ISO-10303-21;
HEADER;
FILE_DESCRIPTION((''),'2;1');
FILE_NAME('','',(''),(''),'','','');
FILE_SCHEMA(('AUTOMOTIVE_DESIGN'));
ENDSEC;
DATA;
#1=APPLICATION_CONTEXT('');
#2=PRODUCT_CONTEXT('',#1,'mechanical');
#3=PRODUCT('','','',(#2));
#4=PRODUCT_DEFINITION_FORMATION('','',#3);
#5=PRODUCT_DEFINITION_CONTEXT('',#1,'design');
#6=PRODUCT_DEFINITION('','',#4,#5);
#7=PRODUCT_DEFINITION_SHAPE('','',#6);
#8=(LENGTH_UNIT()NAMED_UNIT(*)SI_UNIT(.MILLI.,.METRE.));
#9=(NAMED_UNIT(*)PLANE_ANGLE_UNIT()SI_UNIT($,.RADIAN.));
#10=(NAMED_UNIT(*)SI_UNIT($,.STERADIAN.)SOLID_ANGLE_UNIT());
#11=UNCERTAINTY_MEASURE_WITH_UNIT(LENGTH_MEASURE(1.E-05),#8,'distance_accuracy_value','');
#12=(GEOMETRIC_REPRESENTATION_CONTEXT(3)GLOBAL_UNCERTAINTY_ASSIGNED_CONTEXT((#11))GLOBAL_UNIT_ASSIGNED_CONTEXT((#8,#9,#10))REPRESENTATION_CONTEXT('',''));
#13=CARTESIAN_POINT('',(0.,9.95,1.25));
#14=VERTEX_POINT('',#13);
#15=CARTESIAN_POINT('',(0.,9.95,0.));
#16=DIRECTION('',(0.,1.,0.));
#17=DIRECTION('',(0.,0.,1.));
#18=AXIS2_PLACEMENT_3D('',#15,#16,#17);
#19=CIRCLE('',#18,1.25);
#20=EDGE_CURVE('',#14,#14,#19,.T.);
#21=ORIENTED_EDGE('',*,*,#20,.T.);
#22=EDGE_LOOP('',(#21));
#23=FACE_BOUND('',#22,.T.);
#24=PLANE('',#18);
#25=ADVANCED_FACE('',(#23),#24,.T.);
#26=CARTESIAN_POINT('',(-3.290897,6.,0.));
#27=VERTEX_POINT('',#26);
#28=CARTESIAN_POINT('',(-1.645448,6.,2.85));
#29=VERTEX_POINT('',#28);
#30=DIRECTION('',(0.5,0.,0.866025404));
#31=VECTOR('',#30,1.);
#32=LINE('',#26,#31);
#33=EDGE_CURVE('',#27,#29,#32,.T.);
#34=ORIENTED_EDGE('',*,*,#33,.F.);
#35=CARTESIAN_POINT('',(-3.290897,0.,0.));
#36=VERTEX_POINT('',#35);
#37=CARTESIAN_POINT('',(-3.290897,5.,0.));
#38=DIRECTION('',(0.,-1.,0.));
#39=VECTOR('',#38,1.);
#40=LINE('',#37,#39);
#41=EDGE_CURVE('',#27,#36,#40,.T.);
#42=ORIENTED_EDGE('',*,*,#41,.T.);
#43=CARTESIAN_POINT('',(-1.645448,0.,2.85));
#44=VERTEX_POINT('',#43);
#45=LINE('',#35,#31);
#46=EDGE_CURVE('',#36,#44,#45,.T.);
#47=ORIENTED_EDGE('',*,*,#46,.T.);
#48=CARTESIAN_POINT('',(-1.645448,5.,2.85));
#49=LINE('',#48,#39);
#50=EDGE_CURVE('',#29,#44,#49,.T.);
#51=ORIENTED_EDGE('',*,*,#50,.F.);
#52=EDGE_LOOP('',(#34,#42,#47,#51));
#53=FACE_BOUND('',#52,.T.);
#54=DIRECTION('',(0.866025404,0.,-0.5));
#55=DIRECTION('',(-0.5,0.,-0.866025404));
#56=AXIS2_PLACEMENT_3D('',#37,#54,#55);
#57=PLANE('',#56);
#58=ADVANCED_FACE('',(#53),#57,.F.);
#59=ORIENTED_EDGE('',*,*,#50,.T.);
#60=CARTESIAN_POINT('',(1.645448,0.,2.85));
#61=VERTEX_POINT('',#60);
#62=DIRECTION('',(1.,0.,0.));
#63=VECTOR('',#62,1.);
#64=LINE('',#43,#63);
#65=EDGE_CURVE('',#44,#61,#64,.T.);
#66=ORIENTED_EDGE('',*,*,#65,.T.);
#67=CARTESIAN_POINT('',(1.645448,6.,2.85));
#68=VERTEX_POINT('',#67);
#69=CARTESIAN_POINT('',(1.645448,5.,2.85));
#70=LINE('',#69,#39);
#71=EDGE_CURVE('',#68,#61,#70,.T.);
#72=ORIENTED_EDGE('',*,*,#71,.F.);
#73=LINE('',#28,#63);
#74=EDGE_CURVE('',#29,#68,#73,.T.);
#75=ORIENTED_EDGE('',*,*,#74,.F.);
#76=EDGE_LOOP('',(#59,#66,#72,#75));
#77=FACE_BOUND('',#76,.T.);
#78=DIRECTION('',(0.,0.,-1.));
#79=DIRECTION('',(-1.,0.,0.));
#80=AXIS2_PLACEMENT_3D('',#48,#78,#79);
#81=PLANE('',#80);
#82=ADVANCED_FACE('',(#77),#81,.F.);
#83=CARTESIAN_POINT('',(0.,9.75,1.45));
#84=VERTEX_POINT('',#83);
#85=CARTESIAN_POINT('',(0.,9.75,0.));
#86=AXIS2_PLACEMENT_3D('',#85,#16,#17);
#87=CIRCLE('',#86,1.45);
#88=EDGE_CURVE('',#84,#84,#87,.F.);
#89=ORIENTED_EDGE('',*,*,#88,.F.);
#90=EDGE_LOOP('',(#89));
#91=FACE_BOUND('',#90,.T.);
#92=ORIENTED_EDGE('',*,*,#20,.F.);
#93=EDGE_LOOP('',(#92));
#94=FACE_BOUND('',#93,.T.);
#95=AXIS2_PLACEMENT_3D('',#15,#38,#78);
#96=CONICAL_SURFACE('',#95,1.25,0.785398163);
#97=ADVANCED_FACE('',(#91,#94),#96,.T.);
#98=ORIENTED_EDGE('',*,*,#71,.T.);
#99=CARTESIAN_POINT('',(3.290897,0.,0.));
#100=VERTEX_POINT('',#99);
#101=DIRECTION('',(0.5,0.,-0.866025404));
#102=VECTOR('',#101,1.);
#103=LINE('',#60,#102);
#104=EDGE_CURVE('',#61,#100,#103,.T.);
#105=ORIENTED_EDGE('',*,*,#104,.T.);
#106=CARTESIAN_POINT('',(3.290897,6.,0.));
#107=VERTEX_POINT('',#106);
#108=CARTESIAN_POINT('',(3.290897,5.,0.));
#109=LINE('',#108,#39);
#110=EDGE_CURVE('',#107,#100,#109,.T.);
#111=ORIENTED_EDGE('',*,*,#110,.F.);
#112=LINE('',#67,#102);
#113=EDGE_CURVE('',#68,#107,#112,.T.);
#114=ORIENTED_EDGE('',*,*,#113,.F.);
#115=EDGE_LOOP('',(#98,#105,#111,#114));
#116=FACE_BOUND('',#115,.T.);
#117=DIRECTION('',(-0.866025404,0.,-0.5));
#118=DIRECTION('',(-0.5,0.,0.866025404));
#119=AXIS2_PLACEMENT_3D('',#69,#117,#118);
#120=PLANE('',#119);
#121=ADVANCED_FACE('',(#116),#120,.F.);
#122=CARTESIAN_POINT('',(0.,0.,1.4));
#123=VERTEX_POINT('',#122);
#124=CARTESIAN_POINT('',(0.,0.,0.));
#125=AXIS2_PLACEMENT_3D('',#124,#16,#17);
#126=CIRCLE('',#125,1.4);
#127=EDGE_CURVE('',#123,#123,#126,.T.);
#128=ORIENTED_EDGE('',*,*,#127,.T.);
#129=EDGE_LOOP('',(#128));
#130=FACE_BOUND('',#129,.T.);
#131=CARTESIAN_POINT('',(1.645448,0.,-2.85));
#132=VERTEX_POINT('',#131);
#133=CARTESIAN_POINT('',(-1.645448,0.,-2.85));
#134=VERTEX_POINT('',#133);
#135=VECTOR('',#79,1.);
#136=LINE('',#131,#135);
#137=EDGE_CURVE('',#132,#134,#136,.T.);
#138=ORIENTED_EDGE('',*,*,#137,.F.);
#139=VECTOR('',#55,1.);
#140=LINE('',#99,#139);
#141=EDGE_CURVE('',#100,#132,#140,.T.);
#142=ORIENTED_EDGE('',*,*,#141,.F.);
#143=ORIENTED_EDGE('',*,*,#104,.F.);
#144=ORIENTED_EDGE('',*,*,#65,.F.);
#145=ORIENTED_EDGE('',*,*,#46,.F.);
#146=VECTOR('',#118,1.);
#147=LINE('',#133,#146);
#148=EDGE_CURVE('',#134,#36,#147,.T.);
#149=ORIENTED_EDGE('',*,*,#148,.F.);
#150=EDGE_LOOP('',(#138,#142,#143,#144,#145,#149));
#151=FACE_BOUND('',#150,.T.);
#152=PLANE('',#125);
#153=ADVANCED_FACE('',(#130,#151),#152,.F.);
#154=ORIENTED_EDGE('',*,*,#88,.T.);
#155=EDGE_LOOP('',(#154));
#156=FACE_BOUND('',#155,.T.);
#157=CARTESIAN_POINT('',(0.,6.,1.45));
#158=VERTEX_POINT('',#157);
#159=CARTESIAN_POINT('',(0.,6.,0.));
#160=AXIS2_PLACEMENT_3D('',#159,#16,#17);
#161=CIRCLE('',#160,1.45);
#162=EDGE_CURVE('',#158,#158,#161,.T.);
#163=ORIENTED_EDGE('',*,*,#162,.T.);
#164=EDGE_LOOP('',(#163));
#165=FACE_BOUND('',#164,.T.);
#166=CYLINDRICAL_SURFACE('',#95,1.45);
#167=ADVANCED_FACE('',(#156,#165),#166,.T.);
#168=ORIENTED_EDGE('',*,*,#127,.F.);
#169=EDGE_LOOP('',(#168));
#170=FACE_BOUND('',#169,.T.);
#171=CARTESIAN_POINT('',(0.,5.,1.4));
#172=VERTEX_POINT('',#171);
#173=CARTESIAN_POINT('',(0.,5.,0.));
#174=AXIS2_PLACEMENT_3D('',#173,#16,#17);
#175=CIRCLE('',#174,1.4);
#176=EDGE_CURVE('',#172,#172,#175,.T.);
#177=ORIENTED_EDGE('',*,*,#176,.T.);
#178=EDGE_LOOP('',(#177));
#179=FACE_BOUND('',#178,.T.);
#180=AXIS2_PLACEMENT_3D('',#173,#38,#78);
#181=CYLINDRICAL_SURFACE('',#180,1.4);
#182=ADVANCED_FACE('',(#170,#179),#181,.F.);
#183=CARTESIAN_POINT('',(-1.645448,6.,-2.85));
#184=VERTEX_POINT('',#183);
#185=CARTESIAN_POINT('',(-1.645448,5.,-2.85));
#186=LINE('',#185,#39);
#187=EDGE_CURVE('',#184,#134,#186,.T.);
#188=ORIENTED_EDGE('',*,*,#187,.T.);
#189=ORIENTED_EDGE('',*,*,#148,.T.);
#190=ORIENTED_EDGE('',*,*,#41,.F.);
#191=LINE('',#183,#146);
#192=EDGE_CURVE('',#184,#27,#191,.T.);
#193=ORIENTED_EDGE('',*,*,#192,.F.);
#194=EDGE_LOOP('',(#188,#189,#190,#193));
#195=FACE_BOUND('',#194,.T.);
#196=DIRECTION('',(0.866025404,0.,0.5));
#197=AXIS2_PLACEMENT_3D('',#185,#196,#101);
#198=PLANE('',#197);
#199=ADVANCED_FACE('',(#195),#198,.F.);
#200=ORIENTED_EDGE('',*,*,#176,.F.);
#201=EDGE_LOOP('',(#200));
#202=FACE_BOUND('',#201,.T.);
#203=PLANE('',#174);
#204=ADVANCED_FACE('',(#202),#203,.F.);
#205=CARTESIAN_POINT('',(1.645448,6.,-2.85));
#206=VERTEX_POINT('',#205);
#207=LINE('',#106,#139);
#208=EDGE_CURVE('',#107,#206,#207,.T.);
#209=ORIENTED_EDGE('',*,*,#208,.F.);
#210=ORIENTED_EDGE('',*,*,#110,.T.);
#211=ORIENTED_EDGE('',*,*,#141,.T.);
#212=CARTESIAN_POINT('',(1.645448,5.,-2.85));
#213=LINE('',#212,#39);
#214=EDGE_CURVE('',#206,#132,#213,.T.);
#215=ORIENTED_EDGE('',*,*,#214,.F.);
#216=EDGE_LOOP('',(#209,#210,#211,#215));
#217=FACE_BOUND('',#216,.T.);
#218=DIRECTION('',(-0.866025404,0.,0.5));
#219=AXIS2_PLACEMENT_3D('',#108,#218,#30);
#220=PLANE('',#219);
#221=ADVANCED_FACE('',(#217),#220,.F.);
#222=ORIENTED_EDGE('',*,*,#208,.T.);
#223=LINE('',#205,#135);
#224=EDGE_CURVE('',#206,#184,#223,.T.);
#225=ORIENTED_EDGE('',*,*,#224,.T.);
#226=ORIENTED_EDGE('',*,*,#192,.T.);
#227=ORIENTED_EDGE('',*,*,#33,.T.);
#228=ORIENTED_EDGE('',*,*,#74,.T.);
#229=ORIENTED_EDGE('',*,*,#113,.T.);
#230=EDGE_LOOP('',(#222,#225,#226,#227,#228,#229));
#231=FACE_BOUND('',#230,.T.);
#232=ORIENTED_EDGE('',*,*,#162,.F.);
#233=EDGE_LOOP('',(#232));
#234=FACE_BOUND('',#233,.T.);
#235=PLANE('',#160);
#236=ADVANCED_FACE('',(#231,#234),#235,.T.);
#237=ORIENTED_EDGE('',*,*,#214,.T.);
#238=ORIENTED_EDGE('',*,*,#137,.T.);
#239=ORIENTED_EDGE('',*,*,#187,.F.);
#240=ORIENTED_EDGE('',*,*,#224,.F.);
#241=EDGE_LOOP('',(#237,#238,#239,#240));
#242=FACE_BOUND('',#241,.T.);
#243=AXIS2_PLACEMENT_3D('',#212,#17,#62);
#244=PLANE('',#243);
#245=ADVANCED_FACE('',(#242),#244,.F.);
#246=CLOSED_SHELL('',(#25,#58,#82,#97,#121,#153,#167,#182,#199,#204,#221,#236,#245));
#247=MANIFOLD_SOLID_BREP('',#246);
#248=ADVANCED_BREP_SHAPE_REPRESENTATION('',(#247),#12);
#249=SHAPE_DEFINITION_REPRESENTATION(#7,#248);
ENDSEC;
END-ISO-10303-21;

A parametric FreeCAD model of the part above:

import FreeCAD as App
import Part
import Sketcher
Q = App.Units.Quantity


def edges_at(feature, points):
    """Names of the edges that pass closest to the given points."""
    edges = feature.Shape.Edges
    near = lambda p: min(range(len(edges)), key=lambda i: edges[i].distToShape(Part.Vertex(*p))[0])
    return sorted({f"Edge{near(p) + 1}" for p in points})

doc = App.newDocument("Part")
body = doc.addObject("PartDesign::Body", "Body")

sketch1 = body.newObject("Sketcher::SketchObject", "Sketch")
sketch1.AttachmentSupport = (doc.getObject("XZ_Plane"), [""])
sketch1.MapMode = "FlatFace"
sketch1.addGeometry([
    Part.LineSegment(App.Vector(1.6, 2.9, 0), App.Vector(3.3, 0, 0)),
    Part.LineSegment(App.Vector(3.3, 0, 0), App.Vector(1.6, -2.9, 0)),
    Part.LineSegment(App.Vector(1.6, -2.9, 0), App.Vector(-1.6, -2.9, 0)),
    Part.LineSegment(App.Vector(-1.6, -2.9, 0), App.Vector(-3.3, 0, 0)),
    Part.LineSegment(App.Vector(-3.3, 0, 0), App.Vector(-1.6, 2.9, 0)),
    Part.LineSegment(App.Vector(-1.6, 2.9, 0), App.Vector(1.6, 2.9, 0)),
    Part.Circle(App.Vector(0, 0, 0), App.Vector(0, 0, 1), 1.4),
], False)
sketch1.addConstraint([
    Sketcher.Constraint("Coincident", 0, 2, 1, 1),
    Sketcher.Constraint("Coincident", 1, 2, 2, 1),
    Sketcher.Constraint("Coincident", 2, 2, 3, 1),
    Sketcher.Constraint("Coincident", 3, 2, 4, 1),
    Sketcher.Constraint("Coincident", 4, 2, 5, 1),
    Sketcher.Constraint("Coincident", 5, 2, 0, 1),
    Sketcher.Constraint("Horizontal", 2),
    Sketcher.Constraint("Horizontal", 5),
    Sketcher.Constraint("Coincident", 6, 3, -1, 1),
    Sketcher.Constraint("Symmetric", 0, 2, 3, 2, -1, 1),
    Sketcher.Constraint("Symmetric", 1, 2, 4, 2, -1, 1),
    Sketcher.Constraint("PointOnObject", 0, 2, -1),
    Sketcher.Constraint("Parallel", 0, 3),
    Sketcher.Constraint("Vertical", 2, 2, 4, 2),
    Sketcher.Constraint("Diameter", 6, 2.8),
    Sketcher.Constraint("Angle", 0, Q("-60 deg")),
    Sketcher.Constraint("DistanceY", 2, 2, 4, 2, 5.7),
    Sketcher.Constraint("DistanceX", 2, 2, 2, 1, 3.290897),
])
pad1 = body.newObject("PartDesign::Pad", "Pad")
pad1.Profile = sketch1
pad1.Length = 5
pad1.Reversed = True

sketch2 = body.newObject("Sketcher::SketchObject", "Sketch001")
sketch2.AttachmentSupport = (doc.getObject("XZ_Plane"), [""])
sketch2.MapMode = "FlatFace"
sketch2.AttachmentOffset = App.Placement(App.Vector(0, 0, -5), App.Rotation())
sketch2.addGeometry([
    Part.LineSegment(App.Vector(-1.6, 2.9, 0), App.Vector(1.6, 2.9, 0)),
    Part.LineSegment(App.Vector(1.6, 2.9, 0), App.Vector(3.3, 0, 0)),
    Part.LineSegment(App.Vector(3.3, 0, 0), App.Vector(1.6, -2.9, 0)),
    Part.LineSegment(App.Vector(1.6, -2.9, 0), App.Vector(-1.6, -2.9, 0)),
    Part.LineSegment(App.Vector(-1.6, -2.9, 0), App.Vector(-3.3, 0, 0)),
    Part.LineSegment(App.Vector(-3.3, 0, 0), App.Vector(-1.6, 2.9, 0)),
], False)
sketch2.addConstraint([
    Sketcher.Constraint("Coincident", 0, 2, 1, 1),
    Sketcher.Constraint("Coincident", 1, 2, 2, 1),
    Sketcher.Constraint("Coincident", 2, 2, 3, 1),
    Sketcher.Constraint("Coincident", 3, 2, 4, 1),
    Sketcher.Constraint("Coincident", 4, 2, 5, 1),
    Sketcher.Constraint("Coincident", 5, 2, 0, 1),
    Sketcher.Constraint("Horizontal", 0),
    Sketcher.Constraint("Horizontal", 3),
    Sketcher.Constraint("Symmetric", 0, 2, 3, 2, -1, 1),
    Sketcher.Constraint("Symmetric", 1, 2, 4, 2, -1, 1),
    Sketcher.Constraint("PointOnObject", 1, 2, -1),
    Sketcher.Constraint("Parallel", 2, 5),
    Sketcher.Constraint("Vertical", 0, 2, 2, 2),
    Sketcher.Constraint("Angle", 1, Q("-60 deg")),
    Sketcher.Constraint("DistanceY", 2, 2, 0, 2, 5.7),
    Sketcher.Constraint("DistanceX", 0, 1, 0, 2, 3.290897),
])
pad2 = body.newObject("PartDesign::Pad", "Pad001")
pad2.Profile = sketch2
pad2.Length = 1
pad2.Reversed = True

sketch3 = body.newObject("Sketcher::SketchObject", "Sketch002")
sketch3.AttachmentSupport = (doc.getObject("XZ_Plane"), [""])
sketch3.MapMode = "FlatFace"
sketch3.AttachmentOffset = App.Placement(App.Vector(0, 0, -6), App.Rotation())
sketch3.addGeometry(Part.Circle(App.Vector(0, 0, 0), App.Vector(0, 0, 1), 1.4), False)
sketch3.addConstraint([
    Sketcher.Constraint("Coincident", 0, 3, -1, 1),
    Sketcher.Constraint("Diameter", 0, 2.9),
])
pad3 = body.newObject("PartDesign::Pad", "Pad002")
pad3.Profile = sketch3
pad3.Length = 3.95
pad3.Reversed = True
doc.recompute()

chamfer = body.newObject("PartDesign::Chamfer", "Chamfer")
chamfer.Base = (pad3, edges_at(pad3, [(-1.45, 9.95, 0)]))
chamfer.Size = 0.2

doc.recompute()
